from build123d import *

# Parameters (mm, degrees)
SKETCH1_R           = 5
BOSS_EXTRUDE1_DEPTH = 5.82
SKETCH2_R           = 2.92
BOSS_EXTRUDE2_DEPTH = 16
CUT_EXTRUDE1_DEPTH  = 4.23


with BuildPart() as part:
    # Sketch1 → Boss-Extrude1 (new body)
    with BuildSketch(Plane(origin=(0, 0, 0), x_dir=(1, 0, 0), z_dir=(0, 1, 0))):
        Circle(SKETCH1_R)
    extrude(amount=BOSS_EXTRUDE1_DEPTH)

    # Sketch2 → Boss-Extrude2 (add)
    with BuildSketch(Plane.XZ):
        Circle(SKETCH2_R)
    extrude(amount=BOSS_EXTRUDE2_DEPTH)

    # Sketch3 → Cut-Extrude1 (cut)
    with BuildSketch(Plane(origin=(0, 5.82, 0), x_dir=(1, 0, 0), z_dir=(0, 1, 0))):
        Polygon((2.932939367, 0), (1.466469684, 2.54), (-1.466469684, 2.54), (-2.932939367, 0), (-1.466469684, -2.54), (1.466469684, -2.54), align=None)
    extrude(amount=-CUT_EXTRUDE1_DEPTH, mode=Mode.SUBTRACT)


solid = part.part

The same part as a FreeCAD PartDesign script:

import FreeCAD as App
import Part
import Sketcher

V = App.Vector
Q = App.Units.Quantity


def add_polygon(sketch, points):
    """Adds a closed chain of lines whose ends are joined by coincident constraints."""
    first, n = sketch.GeometryCount, len(points)
    for a, b in zip(points, points[1:] + points[:1]):
        sketch.addGeometry(Part.LineSegment(App.Vector(*a, 0), App.Vector(*b, 0)), False)
    for i in range(n):
        sketch.addConstraint(Sketcher.Constraint("Coincident", first + i, 2, first + (i + 1) % n, 1))

doc = App.newDocument("Part")
params = doc.addObject("Spreadsheet::Sheet", "Params")
for row, (alias, value) in enumerate([
    ("sketch1_diameter", "10 mm"),
    ("pad1_length", "5.82 mm"),
    ("sketch2_diameter", "5.84 mm"),
    ("pad2_length", "16 mm"),
    ("pocket1_length", "4.23 mm"),
], start=1):
    params.set(f"A{row}", alias)
    params.set(f"B{row}", "=" + value)
    params.setAlias(f"B{row}", alias)

body = doc.addObject("PartDesign::Body", "Body")

sketch1 = body.newObject("Sketcher::SketchObject", "Sketch")
sketch1.AttachmentSupport = (doc.getObject("XZ_Plane"), [""])
sketch1.MapMode = "FlatFace"
sketch1.addGeometry(Part.Circle(V(0, 0, 0), V(0, 0, 1), 5), False)
sketch1.addConstraint([
    Sketcher.Constraint("Coincident", 0, 3, -1, 1),
    Sketcher.Constraint("Diameter", 0, Q("10 mm")),
])
sketch1.setExpression("Constraints[1]", "Params.sketch1_diameter")
pad1 = body.newObject("PartDesign::Pad", "Pad")
pad1.Profile = sketch1
pad1.setExpression("Length", "Params.pad1_length")
pad1.Reversed = True

sketch2 = body.newObject("Sketcher::SketchObject", "Sketch001")
sketch2.AttachmentSupport = (doc.getObject("XZ_Plane"), [""])
sketch2.MapMode = "FlatFace"
sketch2.addGeometry(Part.Circle(V(0, 0, 0), V(0, 0, 1), 2.9), False)
sketch2.addConstraint([
    Sketcher.Constraint("Coincident", 0, 3, -1, 1),
    Sketcher.Constraint("Diameter", 0, Q("5.84 mm")),
])
sketch2.setExpression("Constraints[1]", "Params.sketch2_diameter")
pad2 = body.newObject("PartDesign::Pad", "Pad001")
pad2.Profile = sketch2
pad2.setExpression("Length", "Params.pad2_length")

sketch3 = body.newObject("Sketcher::SketchObject", "Sketch002")
sketch3.AttachmentSupport = (doc.getObject("XZ_Plane"), [""])
sketch3.MapMode = "FlatFace"
sketch3.AttachmentOffset = App.Placement(V(0, 0, -5.82), App.Rotation())
add_polygon(sketch3, [(2.9, 0), (1.5, -2.5), (-1.5, -2.5), (-2.9, 0), (-1.5, 2.5), (1.5, 2.5)])
sketch3.addConstraint([
    Sketcher.Constraint("Horizontal", 1),
    Sketcher.Constraint("Horizontal", 4),
    Sketcher.Constraint("Symmetric", 0, 2, 3, 2, -1, 1),
    Sketcher.Constraint("Symmetric", 2, 2, 5, 2, -1, 1),
    Sketcher.Constraint("PointOnObject", 2, 2, -1),
    Sketcher.Constraint("Parallel", 2, 5),
    Sketcher.Constraint("Vertical", 1, 2, 3, 2),
    Sketcher.Constraint("Angle", 0, Q("-120 deg")),
    Sketcher.Constraint("DistanceY", 0, 2, -1, 1, Q("2.54 mm")),
    Sketcher.Constraint("DistanceX", 1, 2, 1, 1, Q("2.932939 mm")),
])
pocket1 = body.newObject("PartDesign::Pocket", "Pocket")
pocket1.Profile = sketch3
pocket1.setExpression("Length", "Params.pocket1_length")
pocket1.Reversed = True

doc.recompute()
